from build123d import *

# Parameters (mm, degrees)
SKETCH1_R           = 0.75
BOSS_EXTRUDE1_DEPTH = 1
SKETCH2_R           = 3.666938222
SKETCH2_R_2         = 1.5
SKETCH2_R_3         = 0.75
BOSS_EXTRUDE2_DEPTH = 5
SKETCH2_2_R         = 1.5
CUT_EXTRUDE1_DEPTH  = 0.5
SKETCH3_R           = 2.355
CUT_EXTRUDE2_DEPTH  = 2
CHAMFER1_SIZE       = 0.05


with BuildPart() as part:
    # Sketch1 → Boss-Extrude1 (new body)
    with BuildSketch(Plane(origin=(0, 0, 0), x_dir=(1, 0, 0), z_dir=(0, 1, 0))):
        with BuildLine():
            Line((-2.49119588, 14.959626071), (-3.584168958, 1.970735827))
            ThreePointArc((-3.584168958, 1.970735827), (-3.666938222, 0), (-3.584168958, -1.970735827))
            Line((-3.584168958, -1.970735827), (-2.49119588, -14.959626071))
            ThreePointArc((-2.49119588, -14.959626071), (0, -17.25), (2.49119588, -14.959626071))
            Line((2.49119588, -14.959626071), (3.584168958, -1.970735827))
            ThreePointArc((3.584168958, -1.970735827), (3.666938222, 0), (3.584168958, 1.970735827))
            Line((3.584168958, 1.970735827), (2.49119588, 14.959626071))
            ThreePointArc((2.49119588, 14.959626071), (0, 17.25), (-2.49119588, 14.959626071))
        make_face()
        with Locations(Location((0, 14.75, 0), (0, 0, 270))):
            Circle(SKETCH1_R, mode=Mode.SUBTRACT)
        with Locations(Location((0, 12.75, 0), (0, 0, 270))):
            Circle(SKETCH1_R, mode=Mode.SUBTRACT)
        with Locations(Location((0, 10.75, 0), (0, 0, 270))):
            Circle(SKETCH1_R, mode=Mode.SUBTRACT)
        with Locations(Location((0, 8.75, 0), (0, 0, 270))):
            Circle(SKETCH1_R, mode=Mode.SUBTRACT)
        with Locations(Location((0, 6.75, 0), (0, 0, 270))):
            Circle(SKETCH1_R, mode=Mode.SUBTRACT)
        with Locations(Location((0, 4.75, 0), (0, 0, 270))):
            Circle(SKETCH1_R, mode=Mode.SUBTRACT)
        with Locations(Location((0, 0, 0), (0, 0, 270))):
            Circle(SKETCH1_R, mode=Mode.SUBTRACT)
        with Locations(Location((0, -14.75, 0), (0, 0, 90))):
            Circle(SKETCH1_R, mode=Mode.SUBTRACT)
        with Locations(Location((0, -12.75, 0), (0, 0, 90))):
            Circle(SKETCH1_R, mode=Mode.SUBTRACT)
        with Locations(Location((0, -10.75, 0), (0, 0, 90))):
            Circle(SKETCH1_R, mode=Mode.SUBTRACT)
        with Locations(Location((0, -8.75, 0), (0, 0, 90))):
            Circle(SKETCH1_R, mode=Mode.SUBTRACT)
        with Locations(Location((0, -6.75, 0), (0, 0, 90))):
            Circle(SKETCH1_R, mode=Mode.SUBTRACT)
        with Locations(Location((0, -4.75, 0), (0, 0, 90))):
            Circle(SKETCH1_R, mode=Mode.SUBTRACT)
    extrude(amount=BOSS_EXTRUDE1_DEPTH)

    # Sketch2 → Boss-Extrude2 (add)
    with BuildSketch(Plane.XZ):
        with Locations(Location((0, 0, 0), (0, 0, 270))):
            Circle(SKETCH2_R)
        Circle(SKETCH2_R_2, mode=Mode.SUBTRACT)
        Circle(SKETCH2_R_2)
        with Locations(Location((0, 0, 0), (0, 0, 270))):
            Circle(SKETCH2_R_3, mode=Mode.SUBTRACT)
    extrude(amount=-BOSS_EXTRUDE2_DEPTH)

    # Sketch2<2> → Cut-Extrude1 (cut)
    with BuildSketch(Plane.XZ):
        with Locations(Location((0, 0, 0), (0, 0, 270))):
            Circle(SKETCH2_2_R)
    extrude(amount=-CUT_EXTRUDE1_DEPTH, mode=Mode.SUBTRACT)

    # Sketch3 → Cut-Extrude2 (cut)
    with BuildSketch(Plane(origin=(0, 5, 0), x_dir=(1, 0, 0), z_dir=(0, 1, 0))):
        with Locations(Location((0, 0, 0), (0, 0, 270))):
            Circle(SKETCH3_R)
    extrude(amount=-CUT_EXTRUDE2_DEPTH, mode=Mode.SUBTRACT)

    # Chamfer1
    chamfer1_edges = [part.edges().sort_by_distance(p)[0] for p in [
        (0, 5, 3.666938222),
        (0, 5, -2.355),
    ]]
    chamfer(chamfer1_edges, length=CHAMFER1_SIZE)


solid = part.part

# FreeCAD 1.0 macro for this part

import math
import FreeCAD as App
import Part
import Sketcher

V = App.Vector


def edges_at(feature, points):
    """Names of the edges that pass closest to the given points."""
    edges = feature.Shape.Edges
    near = lambda p: min(range(len(edges)), key=lambda i: edges[i].distToShape(Part.Vertex(*p))[0])
    return sorted({f"Edge{near(p) + 1}" for p in points})

doc = App.newDocument("Part")
body = doc.addObject("PartDesign::Body", "Body")

sketch1 = body.newObject("Sketcher::SketchObject", "Sketch")
sketch1.AttachmentSupport = (doc.getObject("XZ_Plane"), [""])
sketch1.MapMode = "FlatFace"
sketch1.addGeometry(Part.LineSegment(V(-2.491196, -14.959626, 0), V(-3.584169, -1.970736, 0)), False)
sketch1.addGeometry(Part.ArcOfCircle(Part.Circle(V(19.836052, 0, 0), V(0, 0, 1), 23.50299), math.radians(175.190077), math.radians(184.809923)), False)
sketch1.addGeometry(Part.LineSegment(V(-3.584169, 1.970736, 0), V(-2.491196, 14.959626, 0)), False)
sketch1.addGeometry(Part.ArcOfCircle(Part.Circle(V(0, 14.75, 0), V(0, 0, 1), 2.5), math.radians(4.809923), math.radians(175.190077)), False)
sketch1.addGeometry(Part.LineSegment(V(2.491196, 14.959626, 0), V(3.584169, 1.970736, 0)), False)
sketch1.addGeometry(Part.ArcOfCircle(Part.Circle(V(-19.836052, 0, 0), V(0, 0, 1), 23.50299), math.radians(-4.809923), math.radians(4.809923)), False)
sketch1.addGeometry(Part.LineSegment(V(3.584169, -1.970736, 0), V(2.491196, -14.959626, 0)), False)
sketch1.addGeometry(Part.ArcOfCircle(Part.Circle(V(0, -14.75, 0), V(0, 0, 1), 2.5), math.radians(-175.190077), math.radians(-4.809923)), False)
sketch1.addGeometry(Part.Circle(V(0, 14.75, 0), V(0, 0, 1), 0.75), False)
sketch1.addGeometry(Part.Circle(V(0, 12.75, 0), V(0, 0, 1), 0.75), False)
sketch1.addGeometry(Part.Circle(V(0, 10.75, 0), V(0, 0, 1), 0.75), False)
sketch1.addGeometry(Part.Circle(V(0, 8.75, 0), V(0, 0, 1), 0.75), False)
sketch1.addGeometry(Part.Circle(V(0, 6.75, 0), V(0, 0, 1), 0.75), False)
sketch1.addGeometry(Part.Circle(V(0, 4.75, 0), V(0, 0, 1), 0.75), False)
sketch1.addGeometry(Part.Circle(V(0, 0, 0), V(0, 0, 1), 0.75), False)
sketch1.addGeometry(Part.Circle(V(0, -4.75, 0), V(0, 0, 1), 0.75), False)
sketch1.addGeometry(Part.Circle(V(0, -6.75, 0), V(0, 0, 1), 0.75), False)
sketch1.addGeometry(Part.Circle(V(0, -8.75, 0), V(0, 0, 1), 0.75), False)
sketch1.addGeometry(Part.Circle(V(0, -10.75, 0), V(0, 0, 1), 0.75), False)
sketch1.addGeometry(Part.Circle(V(0, -12.75, 0), V(0, 0, 1), 0.75), False)
sketch1.addGeometry(Part.Circle(V(0, -14.75, 0), V(0, 0, 1), 0.75), False)
sketch1.addConstraint(Sketcher.Constraint("Tangent", 0, 2, 1, 2))
sketch1.addConstraint(Sketcher.Constraint("Tangent", 1, 1, 2, 1))
sketch1.addConstraint(Sketcher.Constraint("Tangent", 2, 2, 3, 2))
sketch1.addConstraint(Sketcher.Constraint("Tangent", 3, 1, 4, 1))
sketch1.addConstraint(Sketcher.Constraint("Tangent", 4, 2, 5, 2))
sketch1.addConstraint(Sketcher.Constraint("Tangent", 5, 1, 6, 1))
sketch1.addConstraint(Sketcher.Constraint("Tangent", 6, 2, 7, 2))
sketch1.addConstraint(Sketcher.Constraint("Tangent", 7, 1, 0, 1))
sketch1.addConstraint(Sketcher.Constraint("Coincident", 14, 3, -1, 1))
sketch1.addConstraint(Sketcher.Constraint("Coincident", 8, 3, 3, 3))
sketch1.addConstraint(Sketcher.Constraint("Coincident", 20, 3, 7, 3))
sketch1.addConstraint(Sketcher.Constraint("Equal", 1, 5))
sketch1.addConstraint(Sketcher.Constraint("Equal", 3, 7))
sketch1.addConstraint(Sketcher.Constraint("Equal", 8, 9))
sketch1.addConstraint(Sketcher.Constraint("Equal", 9, 10))
sketch1.addConstraint(Sketcher.Constraint("Equal", 10, 11))
sketch1.addConstraint(Sketcher.Constraint("Equal", 11, 12))
sketch1.addConstraint(Sketcher.Constraint("Equal", 12, 13))
sketch1.addConstraint(Sketcher.Constraint("Equal", 13, 14))
sketch1.addConstraint(Sketcher.Constraint("Equal", 14, 15))
sketch1.addConstraint(Sketcher.Constraint("Equal", 15, 16))
sketch1.addConstraint(Sketcher.Constraint("Equal", 16, 17))
sketch1.addConstraint(Sketcher.Constraint("Equal", 17, 18))
sketch1.addConstraint(Sketcher.Constraint("Equal", 18, 19))
sketch1.addConstraint(Sketcher.Constraint("Equal", 19, 20))
sketch1.addConstraint(Sketcher.Constraint("Symmetric", 1, 3, 5, 3, -1, 1))
sketch1.addConstraint(Sketcher.Constraint("Symmetric", 3, 3, 7, 3, -1, 1))
sketch1.addConstraint(Sketcher.Constraint("Symmetric", 13, 3, 15, 3, -1, 1))
sketch1.addConstraint(Sketcher.Constraint("Symmetric", 12, 3, 16, 3, -1, 1))
sketch1.addConstraint(Sketcher.Constraint("Symmetric", 11, 3, 17, 3, -1, 1))
sketch1.addConstraint(Sketcher.Constraint("Symmetric", 10, 3, 18, 3, -1, 1))
sketch1.addConstraint(Sketcher.Constraint("Symmetric", 9, 3, 19, 3, -1, 1))
sketch1.addConstraint(Sketcher.Constraint("Symmetric", 2, 2, 3, 1, -2))
sketch1.addConstraint(Sketcher.Constraint("PointOnObject", 9, 3, -2))
sketch1.addConstraint(Sketcher.Constraint("PointOnObject", 10, 3, -2))
sketch1.addConstraint(Sketcher.Constraint("PointOnObject", 11, 3, -2))
sketch1.addConstraint(Sketcher.Constraint("PointOnObject", 12, 3, -2))
sketch1.addConstraint(Sketcher.Constraint("PointOnObject", 13, 3, -2))
sketch1.addConstraint(Sketcher.Constraint("Diameter", 8, 1.5))
sketch1.addConstraint(Sketcher.Constraint("Radius", 3, 2.5))
sketch1.addConstraint(Sketcher.Constraint("DistanceY", 9, 3, 3, 3, 2.0))
sketch1.addConstraint(Sketcher.Constraint("DistanceY", 10, 3, 9, 3, 2.0))
sketch1.addConstraint(Sketcher.Constraint("DistanceY", 11, 3, 10, 3, 2.0))
sketch1.addConstraint(Sketcher.Constraint("DistanceY", 12, 3, 11, 3, 2.0))
sketch1.addConstraint(Sketcher.Constraint("DistanceY", 13, 3, 12, 3, 2.0))
sketch1.addConstraint(Sketcher.Constraint("DistanceY", 7, 3, 3, 3, 29.5))
sketch1.addConstraint(Sketcher.Constraint("Radius", 1, 23.50299))
sketch1.addConstraint(Sketcher.Constraint("DistanceX", 0, 2, -1, 1, 3.584169))
pad1 = body.newObject("PartDesign::Pad", "Pad")
pad1.Profile = sketch1
pad1.Length = 1
pad1.Reversed = True

sketch2 = body.newObject("Sketcher::SketchObject", "Sketch001")
sketch2.AttachmentSupport = (doc.getObject("XZ_Plane"), [""])
sketch2.MapMode = "FlatFace"
sketch2.addGeometry(Part.Circle(V(0, 0, 0), V(0, 0, 1), 3.666938), False)
sketch2.addGeometry(Part.Circle(V(0, 0, 0), V(0, 0, 1), 0.75), False)
sketch2.addConstraint(Sketcher.Constraint("Coincident", 0, 3, -1, 1))
sketch2.addConstraint(Sketcher.Constraint("Coincident", 1, 3, -1, 1))
sketch2.addConstraint(Sketcher.Constraint("Diameter", 1, 1.5))
sketch2.addConstraint(Sketcher.Constraint("Diameter", 0, 7.333876))
pad2 = body.newObject("PartDesign::Pad", "Pad001")
pad2.Profile = sketch2
pad2.Length = 5
pad2.Reversed = True

sketch3 = body.newObject("Sketcher::SketchObject", "Sketch002")
sketch3.AttachmentSupport = (doc.getObject("XZ_Plane"), [""])
sketch3.MapMode = "FlatFace"
sketch3.addGeometry(Part.Circle(V(0, 0, 0), V(0, 0, 1), 1.5), False)
sketch3.addConstraint(Sketcher.Constraint("Coincident", 0, 3, -1, 1))
sketch3.addConstraint(Sketcher.Constraint("Diameter", 0, 3.0))
pocket1 = body.newObject("PartDesign::Pocket", "Pocket")
pocket1.Profile = sketch3
pocket1.Length = 0.5

sketch4 = body.newObject("Sketcher::SketchObject", "Sketch003")
sketch4.AttachmentSupport = (doc.getObject("XZ_Plane"), [""])
sketch4.MapMode = "FlatFace"
sketch4.AttachmentOffset = App.Placement(V(0, 0, -5), App.Rotation())
sketch4.addGeometry(Part.Circle(V(0, 0, 0), V(0, 0, 1), 2.355), False)
sketch4.addConstraint(Sketcher.Constraint("Coincident", 0, 3, -1, 1))
sketch4.addConstraint(Sketcher.Constraint("Diameter", 0, 4.71))
pocket2 = body.newObject("PartDesign::Pocket", "Pocket001")
pocket2.Profile = sketch4
pocket2.Length = 2
pocket2.Reversed = True
doc.recompute()

chamfer = body.newObject("PartDesign::Chamfer", "Chamfer")
chamfer.Base = (pocket2, edges_at(pocket2, [(0, 5, 3.667), (0, 5, -2.355)]))
chamfer.Size = 0.05

doc.recompute()
